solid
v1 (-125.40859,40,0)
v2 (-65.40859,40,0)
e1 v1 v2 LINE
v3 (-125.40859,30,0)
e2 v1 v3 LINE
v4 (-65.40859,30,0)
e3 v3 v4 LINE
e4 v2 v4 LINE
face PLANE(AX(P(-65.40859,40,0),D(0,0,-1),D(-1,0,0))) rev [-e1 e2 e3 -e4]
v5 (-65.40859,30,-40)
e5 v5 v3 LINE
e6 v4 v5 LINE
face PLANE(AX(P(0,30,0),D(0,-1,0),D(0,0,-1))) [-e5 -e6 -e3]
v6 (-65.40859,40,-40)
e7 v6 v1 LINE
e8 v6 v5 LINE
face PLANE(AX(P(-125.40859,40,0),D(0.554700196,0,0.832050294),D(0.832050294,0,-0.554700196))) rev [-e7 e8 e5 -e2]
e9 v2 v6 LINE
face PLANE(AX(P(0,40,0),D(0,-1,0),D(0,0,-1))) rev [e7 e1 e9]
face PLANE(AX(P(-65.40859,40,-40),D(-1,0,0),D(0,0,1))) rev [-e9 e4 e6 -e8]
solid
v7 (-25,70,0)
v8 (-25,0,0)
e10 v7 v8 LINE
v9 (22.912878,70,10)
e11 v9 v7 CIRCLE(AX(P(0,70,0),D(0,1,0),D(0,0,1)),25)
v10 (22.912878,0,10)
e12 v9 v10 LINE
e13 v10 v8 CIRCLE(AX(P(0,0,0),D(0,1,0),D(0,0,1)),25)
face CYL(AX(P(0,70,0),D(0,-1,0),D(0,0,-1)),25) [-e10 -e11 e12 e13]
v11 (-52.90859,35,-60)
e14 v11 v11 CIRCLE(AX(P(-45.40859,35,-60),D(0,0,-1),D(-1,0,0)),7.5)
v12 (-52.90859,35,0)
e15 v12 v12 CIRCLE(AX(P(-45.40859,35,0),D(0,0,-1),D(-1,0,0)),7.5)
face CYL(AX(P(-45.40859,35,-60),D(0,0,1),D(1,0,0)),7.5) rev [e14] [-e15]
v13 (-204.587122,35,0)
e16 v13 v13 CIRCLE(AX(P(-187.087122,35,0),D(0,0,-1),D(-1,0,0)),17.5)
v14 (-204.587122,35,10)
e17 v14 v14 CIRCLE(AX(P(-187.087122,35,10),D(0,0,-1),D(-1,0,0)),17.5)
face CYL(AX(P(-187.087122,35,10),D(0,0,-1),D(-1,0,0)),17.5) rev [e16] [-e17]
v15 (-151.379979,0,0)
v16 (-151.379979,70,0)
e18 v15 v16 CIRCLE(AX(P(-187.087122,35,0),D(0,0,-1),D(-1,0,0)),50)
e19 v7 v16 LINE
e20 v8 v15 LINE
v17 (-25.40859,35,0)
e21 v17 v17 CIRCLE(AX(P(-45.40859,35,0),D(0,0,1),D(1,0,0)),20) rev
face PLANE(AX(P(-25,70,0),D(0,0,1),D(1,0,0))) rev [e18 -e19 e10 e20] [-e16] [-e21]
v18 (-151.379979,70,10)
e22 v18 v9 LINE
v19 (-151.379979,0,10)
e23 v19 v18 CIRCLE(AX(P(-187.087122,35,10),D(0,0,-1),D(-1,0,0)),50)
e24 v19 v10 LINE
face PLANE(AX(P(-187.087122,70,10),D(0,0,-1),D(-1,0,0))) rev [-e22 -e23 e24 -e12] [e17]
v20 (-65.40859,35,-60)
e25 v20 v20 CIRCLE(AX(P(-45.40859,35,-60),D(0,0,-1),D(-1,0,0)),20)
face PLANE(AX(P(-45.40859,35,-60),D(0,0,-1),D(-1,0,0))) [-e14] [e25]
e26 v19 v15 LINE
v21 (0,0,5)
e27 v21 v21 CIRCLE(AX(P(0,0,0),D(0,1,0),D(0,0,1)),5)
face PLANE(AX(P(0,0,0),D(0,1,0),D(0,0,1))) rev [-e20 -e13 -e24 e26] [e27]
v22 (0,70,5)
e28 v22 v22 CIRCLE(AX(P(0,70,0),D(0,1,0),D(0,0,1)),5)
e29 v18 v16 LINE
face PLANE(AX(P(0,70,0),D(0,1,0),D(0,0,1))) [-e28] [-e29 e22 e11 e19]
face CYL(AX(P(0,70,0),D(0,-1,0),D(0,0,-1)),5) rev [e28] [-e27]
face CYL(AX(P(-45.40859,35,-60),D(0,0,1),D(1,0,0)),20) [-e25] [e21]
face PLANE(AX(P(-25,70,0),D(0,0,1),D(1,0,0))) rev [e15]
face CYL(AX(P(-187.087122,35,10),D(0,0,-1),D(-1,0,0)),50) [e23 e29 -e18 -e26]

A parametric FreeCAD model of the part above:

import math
import FreeCAD as App
import Part
import Sketcher
from FreeCAD import Vector

doc = App.newDocument("Part")
params = doc.addObject("Spreadsheet::Sheet", "Params")
for row, (alias, value) in enumerate([
    ("sketch1_diameter", "10 mm"),
    ("sketch1_radius", "25 mm"),
    ("sketch1_width", "210 mm"),
    ("sketch1_height", "10 mm"),
    ("pad1_length", "70 mm"),
    ("sketch2_radius", "50 mm"),
    ("pad2_length", "10 mm"),
    ("sketch3_diameter", "35 mm"),
    ("pocket1_length", "10 mm"),
    ("sketch4_diameter", "40 mm"),
    ("sketch4_diameter2", "15 mm"),
    ("pad3_length", "60 mm"),
    ("sketch5_width", "60 mm"),
    ("sketch5_height", "40 mm"),
    ("pad4_length", "10 mm"),
], start=1):
    params.set(f"A{row}", alias)
    params.set(f"B{row}", "=" + value)
    params.setAlias(f"B{row}", alias)

body = doc.addObject("PartDesign::Body", "Body")

# Sketch on XZ plane
sketch1 = body.newObject("Sketcher::SketchObject", "Sketch")
sketch1.AttachmentSupport = (doc.getObject("XZ_Plane"), [""])
sketch1.MapMode = "FlatFace"
sketch1.addGeometry([
    Part.LineSegment(Vector(-25, 0, 0), Vector(-187, 0, 0)),  # 0
    Part.LineSegment(Vector(-187, 0, 0), Vector(-187, 10, 0)),  # 1
    Part.LineSegment(Vector(-187, 10, 0), Vector(23, 10, 0)),  # 2
    Part.ArcOfCircle(Part.Circle(Vector(0, 0, 0), Vector(0, 0, 1), 25), math.radians(180), math.radians(384)),  # 3
    Part.Circle(Vector(0, 0, 0), Vector(0, 0, 1), 5),  # 4
], False)
sketch1.addConstraint([
    Sketcher.Constraint("Coincident", 0, 2, 1, 1),
    Sketcher.Constraint("Coincident", 1, 2, 2, 1),
    Sketcher.Constraint("Coincident", 2, 2, 3, 2),
    Sketcher.Constraint("Coincident", 3, 1, 0, 1),
    Sketcher.Constraint("Horizontal", 0),
    Sketcher.Constraint("Vertical", 1),
    Sketcher.Constraint("Horizontal", 2),
    Sketcher.Constraint("Coincident", 3, 3, -1, 1),
    Sketcher.Constraint("Coincident", 4, 3, -1, 1),
    Sketcher.Constraint("PointOnObject", 0, 2, -1),
    Sketcher.Constraint("Diameter", 4, 10.0),
    Sketcher.Constraint("Radius", 3, 25.0),
    Sketcher.Constraint("DistanceX", 2, 1, 2, 2, 210.0),
    Sketcher.Constraint("DistanceY", 1, 1, 1, 2, 10.0),
])
sketch1.setExpression("Constraints[10]", "Params.sketch1_diameter")
sketch1.setExpression("Constraints[11]", "Params.sketch1_radius")
sketch1.setExpression("Constraints[12]", "Params.sketch1_width")
sketch1.setExpression("Constraints[13]", "Params.sketch1_height")
pad1 = body.newObject("PartDesign::Pad", "Pad")
pad1.Profile = sketch1
pad1.setExpression("Length", "Params.pad1_length")
pad1.Reversed = True

# Sketch on XY plane
sketch2 = body.newObject("Sketcher::SketchObject", "Sketch001")
sketch2.AttachmentSupport = (doc.getObject("XY_Plane"), [""])
sketch2.MapMode = "FlatFace"
sketch2.addGeometry([
    Part.ArcOfCircle(Part.Circle(Vector(-187, 35, 0), Vector(0, 0, 1), 50), math.radians(-44), math.radians(44)),
    Part.ArcOfCircle(Part.Circle(Vector(-187, 35, 0), Vector(0, 0, 1), 50), math.radians(180), math.radians(316)),
    Part.ArcOfCircle(Part.Circle(Vector(-187, 35, 0), Vector(0, 0, 1), 50), math.radians(44), math.radians(180)),
], False)
sketch2.addConstraint([
    Sketcher.Constraint("Tangent", 0, 1, 1, 2),
    Sketcher.Constraint("Tangent", 1, 1, 2, 2),
    Sketcher.Constraint("Tangent", 2, 1, 0, 2),
    Sketcher.Constraint("PointOnObject", 0, 1, -1),
    Sketcher.Constraint("Horizontal", 2, 3, 1, 1),
    Sketcher.Constraint("Vertical", 0, 1, 2, 1),
    Sketcher.Constraint("Radius", 0, 50.0),
    Sketcher.Constraint("DistanceY", -1, 1, 0, 3, 35.0),
    Sketcher.Constraint("DistanceX", 0, 3, -1, 1, 187.087122),
])
sketch2.setExpression("Constraints[6]", "Params.sketch2_radius")
pad2 = body.newObject("PartDesign::Pad", "Pad001")
pad2.Profile = sketch2
pad2.setExpression("Length", "Params.pad2_length")

# Sketch on XY plane
sketch3 = body.newObject("Sketcher::SketchObject", "Sketch002")
sketch3.AttachmentSupport = (doc.getObject("XY_Plane"), [""])
sketch3.MapMode = "FlatFace"
sketch3.addGeometry(Part.Circle(Vector(-187, 35, 0), Vector(0, 0, 1), 18), False)
sketch3.addConstraint([
    Sketcher.Constraint("Diameter", 0, 35.0),
    Sketcher.Constraint("DistanceY", -1, 1, 0, 3, 35.0),
    Sketcher.Constraint("DistanceX", 0, 3, -1, 1, 187.087122),
])
sketch3.setExpression("Constraints[0]", "Params.sketch3_diameter")
pocket1 = body.newObject("PartDesign::Pocket", "Pocket")
pocket1.Profile = sketch3
pocket1.setExpression("Length", "Params.pocket1_length")
pocket1.Reversed = True

# Sketch on XY plane
sketch4 = body.newObject("Sketcher::SketchObject", "Sketch003")
sketch4.AttachmentSupport = (doc.getObject("XY_Plane"), [""])
sketch4.MapMode = "FlatFace"
sketch4.addGeometry([
    Part.Circle(Vector(-45, 35, 0), Vector(0, 0, 1), 20),
    Part.Circle(Vector(-45, 35, 0), Vector(0, 0, 1), 8),
], False)
sketch4.addConstraint([
    Sketcher.Constraint("Coincident", 1, 3, 0, 3),
    Sketcher.Constraint("Diameter", 0, 40.0),
    Sketcher.Constraint("Diameter", 1, 15.0),
    Sketcher.Constraint("DistanceY", -1, 1, 0, 3, 35.0),
    Sketcher.Constraint("DistanceX", 0, 3, -1, 1, 45.40859),
])
sketch4.setExpression("Constraints[1]", "Params.sketch4_diameter")
sketch4.setExpression("Constraints[2]", "Params.sketch4_diameter2")
pad3 = body.newObject("PartDesign::Pad", "Pad002")
pad3.Profile = sketch4
pad3.setExpression("Length", "Params.pad3_length")
pad3.Reversed = True
body2 = doc.addObject("PartDesign::Body", "Body001")

# Sketch on XZ plane
sketch5 = body2.newObject("Sketcher::SketchObject", "Sketch004")
sketch5.AttachmentSupport = (doc.getObject("XZ_Plane001"), [""])
sketch5.MapMode = "FlatFace"
sketch5.AttachmentOffset = App.Placement(Vector(0, 0, -35), App.Rotation())
sketch5.addGeometry([
    Part.LineSegment(Vector(-65, 0, 0), Vector(-65, -40, 0)),
    Part.LineSegment(Vector(-65, -40, 0), Vector(-125, 0, 0)),
    Part.LineSegment(Vector(-125, 0, 0), Vector(-65, 0, 0)),
], False)
sketch5.addConstraint([
    Sketcher.Constraint("Coincident", 0, 2, 1, 1),
    Sketcher.Constraint("Coincident", 1, 2, 2, 1),
    Sketcher.Constraint("Coincident", 2, 2, 0, 1),
    Sketcher.Constraint("Vertical", 0),
    Sketcher.Constraint("Horizontal", 2),
    Sketcher.Constraint("PointOnObject", 1, 2, -1),
    Sketcher.Constraint("DistanceX", 2, 1, 2, 2, 60.0),
    Sketcher.Constraint("DistanceY", 0, 2, 0, 1, 40.0),
    Sketcher.Constraint("DistanceX", 0, 2, -1, 1, 65.40859),
])
sketch5.setExpression("Constraints[6]", "Params.sketch5_width")
sketch5.setExpression("Constraints[7]", "Params.sketch5_height")
pad4 = body2.newObject("PartDesign::Pad", "Pad003")
pad4.Profile = sketch5
pad4.setExpression("Length", "Params.pad4_length")
pad4.Midplane = True

doc.recompute()
